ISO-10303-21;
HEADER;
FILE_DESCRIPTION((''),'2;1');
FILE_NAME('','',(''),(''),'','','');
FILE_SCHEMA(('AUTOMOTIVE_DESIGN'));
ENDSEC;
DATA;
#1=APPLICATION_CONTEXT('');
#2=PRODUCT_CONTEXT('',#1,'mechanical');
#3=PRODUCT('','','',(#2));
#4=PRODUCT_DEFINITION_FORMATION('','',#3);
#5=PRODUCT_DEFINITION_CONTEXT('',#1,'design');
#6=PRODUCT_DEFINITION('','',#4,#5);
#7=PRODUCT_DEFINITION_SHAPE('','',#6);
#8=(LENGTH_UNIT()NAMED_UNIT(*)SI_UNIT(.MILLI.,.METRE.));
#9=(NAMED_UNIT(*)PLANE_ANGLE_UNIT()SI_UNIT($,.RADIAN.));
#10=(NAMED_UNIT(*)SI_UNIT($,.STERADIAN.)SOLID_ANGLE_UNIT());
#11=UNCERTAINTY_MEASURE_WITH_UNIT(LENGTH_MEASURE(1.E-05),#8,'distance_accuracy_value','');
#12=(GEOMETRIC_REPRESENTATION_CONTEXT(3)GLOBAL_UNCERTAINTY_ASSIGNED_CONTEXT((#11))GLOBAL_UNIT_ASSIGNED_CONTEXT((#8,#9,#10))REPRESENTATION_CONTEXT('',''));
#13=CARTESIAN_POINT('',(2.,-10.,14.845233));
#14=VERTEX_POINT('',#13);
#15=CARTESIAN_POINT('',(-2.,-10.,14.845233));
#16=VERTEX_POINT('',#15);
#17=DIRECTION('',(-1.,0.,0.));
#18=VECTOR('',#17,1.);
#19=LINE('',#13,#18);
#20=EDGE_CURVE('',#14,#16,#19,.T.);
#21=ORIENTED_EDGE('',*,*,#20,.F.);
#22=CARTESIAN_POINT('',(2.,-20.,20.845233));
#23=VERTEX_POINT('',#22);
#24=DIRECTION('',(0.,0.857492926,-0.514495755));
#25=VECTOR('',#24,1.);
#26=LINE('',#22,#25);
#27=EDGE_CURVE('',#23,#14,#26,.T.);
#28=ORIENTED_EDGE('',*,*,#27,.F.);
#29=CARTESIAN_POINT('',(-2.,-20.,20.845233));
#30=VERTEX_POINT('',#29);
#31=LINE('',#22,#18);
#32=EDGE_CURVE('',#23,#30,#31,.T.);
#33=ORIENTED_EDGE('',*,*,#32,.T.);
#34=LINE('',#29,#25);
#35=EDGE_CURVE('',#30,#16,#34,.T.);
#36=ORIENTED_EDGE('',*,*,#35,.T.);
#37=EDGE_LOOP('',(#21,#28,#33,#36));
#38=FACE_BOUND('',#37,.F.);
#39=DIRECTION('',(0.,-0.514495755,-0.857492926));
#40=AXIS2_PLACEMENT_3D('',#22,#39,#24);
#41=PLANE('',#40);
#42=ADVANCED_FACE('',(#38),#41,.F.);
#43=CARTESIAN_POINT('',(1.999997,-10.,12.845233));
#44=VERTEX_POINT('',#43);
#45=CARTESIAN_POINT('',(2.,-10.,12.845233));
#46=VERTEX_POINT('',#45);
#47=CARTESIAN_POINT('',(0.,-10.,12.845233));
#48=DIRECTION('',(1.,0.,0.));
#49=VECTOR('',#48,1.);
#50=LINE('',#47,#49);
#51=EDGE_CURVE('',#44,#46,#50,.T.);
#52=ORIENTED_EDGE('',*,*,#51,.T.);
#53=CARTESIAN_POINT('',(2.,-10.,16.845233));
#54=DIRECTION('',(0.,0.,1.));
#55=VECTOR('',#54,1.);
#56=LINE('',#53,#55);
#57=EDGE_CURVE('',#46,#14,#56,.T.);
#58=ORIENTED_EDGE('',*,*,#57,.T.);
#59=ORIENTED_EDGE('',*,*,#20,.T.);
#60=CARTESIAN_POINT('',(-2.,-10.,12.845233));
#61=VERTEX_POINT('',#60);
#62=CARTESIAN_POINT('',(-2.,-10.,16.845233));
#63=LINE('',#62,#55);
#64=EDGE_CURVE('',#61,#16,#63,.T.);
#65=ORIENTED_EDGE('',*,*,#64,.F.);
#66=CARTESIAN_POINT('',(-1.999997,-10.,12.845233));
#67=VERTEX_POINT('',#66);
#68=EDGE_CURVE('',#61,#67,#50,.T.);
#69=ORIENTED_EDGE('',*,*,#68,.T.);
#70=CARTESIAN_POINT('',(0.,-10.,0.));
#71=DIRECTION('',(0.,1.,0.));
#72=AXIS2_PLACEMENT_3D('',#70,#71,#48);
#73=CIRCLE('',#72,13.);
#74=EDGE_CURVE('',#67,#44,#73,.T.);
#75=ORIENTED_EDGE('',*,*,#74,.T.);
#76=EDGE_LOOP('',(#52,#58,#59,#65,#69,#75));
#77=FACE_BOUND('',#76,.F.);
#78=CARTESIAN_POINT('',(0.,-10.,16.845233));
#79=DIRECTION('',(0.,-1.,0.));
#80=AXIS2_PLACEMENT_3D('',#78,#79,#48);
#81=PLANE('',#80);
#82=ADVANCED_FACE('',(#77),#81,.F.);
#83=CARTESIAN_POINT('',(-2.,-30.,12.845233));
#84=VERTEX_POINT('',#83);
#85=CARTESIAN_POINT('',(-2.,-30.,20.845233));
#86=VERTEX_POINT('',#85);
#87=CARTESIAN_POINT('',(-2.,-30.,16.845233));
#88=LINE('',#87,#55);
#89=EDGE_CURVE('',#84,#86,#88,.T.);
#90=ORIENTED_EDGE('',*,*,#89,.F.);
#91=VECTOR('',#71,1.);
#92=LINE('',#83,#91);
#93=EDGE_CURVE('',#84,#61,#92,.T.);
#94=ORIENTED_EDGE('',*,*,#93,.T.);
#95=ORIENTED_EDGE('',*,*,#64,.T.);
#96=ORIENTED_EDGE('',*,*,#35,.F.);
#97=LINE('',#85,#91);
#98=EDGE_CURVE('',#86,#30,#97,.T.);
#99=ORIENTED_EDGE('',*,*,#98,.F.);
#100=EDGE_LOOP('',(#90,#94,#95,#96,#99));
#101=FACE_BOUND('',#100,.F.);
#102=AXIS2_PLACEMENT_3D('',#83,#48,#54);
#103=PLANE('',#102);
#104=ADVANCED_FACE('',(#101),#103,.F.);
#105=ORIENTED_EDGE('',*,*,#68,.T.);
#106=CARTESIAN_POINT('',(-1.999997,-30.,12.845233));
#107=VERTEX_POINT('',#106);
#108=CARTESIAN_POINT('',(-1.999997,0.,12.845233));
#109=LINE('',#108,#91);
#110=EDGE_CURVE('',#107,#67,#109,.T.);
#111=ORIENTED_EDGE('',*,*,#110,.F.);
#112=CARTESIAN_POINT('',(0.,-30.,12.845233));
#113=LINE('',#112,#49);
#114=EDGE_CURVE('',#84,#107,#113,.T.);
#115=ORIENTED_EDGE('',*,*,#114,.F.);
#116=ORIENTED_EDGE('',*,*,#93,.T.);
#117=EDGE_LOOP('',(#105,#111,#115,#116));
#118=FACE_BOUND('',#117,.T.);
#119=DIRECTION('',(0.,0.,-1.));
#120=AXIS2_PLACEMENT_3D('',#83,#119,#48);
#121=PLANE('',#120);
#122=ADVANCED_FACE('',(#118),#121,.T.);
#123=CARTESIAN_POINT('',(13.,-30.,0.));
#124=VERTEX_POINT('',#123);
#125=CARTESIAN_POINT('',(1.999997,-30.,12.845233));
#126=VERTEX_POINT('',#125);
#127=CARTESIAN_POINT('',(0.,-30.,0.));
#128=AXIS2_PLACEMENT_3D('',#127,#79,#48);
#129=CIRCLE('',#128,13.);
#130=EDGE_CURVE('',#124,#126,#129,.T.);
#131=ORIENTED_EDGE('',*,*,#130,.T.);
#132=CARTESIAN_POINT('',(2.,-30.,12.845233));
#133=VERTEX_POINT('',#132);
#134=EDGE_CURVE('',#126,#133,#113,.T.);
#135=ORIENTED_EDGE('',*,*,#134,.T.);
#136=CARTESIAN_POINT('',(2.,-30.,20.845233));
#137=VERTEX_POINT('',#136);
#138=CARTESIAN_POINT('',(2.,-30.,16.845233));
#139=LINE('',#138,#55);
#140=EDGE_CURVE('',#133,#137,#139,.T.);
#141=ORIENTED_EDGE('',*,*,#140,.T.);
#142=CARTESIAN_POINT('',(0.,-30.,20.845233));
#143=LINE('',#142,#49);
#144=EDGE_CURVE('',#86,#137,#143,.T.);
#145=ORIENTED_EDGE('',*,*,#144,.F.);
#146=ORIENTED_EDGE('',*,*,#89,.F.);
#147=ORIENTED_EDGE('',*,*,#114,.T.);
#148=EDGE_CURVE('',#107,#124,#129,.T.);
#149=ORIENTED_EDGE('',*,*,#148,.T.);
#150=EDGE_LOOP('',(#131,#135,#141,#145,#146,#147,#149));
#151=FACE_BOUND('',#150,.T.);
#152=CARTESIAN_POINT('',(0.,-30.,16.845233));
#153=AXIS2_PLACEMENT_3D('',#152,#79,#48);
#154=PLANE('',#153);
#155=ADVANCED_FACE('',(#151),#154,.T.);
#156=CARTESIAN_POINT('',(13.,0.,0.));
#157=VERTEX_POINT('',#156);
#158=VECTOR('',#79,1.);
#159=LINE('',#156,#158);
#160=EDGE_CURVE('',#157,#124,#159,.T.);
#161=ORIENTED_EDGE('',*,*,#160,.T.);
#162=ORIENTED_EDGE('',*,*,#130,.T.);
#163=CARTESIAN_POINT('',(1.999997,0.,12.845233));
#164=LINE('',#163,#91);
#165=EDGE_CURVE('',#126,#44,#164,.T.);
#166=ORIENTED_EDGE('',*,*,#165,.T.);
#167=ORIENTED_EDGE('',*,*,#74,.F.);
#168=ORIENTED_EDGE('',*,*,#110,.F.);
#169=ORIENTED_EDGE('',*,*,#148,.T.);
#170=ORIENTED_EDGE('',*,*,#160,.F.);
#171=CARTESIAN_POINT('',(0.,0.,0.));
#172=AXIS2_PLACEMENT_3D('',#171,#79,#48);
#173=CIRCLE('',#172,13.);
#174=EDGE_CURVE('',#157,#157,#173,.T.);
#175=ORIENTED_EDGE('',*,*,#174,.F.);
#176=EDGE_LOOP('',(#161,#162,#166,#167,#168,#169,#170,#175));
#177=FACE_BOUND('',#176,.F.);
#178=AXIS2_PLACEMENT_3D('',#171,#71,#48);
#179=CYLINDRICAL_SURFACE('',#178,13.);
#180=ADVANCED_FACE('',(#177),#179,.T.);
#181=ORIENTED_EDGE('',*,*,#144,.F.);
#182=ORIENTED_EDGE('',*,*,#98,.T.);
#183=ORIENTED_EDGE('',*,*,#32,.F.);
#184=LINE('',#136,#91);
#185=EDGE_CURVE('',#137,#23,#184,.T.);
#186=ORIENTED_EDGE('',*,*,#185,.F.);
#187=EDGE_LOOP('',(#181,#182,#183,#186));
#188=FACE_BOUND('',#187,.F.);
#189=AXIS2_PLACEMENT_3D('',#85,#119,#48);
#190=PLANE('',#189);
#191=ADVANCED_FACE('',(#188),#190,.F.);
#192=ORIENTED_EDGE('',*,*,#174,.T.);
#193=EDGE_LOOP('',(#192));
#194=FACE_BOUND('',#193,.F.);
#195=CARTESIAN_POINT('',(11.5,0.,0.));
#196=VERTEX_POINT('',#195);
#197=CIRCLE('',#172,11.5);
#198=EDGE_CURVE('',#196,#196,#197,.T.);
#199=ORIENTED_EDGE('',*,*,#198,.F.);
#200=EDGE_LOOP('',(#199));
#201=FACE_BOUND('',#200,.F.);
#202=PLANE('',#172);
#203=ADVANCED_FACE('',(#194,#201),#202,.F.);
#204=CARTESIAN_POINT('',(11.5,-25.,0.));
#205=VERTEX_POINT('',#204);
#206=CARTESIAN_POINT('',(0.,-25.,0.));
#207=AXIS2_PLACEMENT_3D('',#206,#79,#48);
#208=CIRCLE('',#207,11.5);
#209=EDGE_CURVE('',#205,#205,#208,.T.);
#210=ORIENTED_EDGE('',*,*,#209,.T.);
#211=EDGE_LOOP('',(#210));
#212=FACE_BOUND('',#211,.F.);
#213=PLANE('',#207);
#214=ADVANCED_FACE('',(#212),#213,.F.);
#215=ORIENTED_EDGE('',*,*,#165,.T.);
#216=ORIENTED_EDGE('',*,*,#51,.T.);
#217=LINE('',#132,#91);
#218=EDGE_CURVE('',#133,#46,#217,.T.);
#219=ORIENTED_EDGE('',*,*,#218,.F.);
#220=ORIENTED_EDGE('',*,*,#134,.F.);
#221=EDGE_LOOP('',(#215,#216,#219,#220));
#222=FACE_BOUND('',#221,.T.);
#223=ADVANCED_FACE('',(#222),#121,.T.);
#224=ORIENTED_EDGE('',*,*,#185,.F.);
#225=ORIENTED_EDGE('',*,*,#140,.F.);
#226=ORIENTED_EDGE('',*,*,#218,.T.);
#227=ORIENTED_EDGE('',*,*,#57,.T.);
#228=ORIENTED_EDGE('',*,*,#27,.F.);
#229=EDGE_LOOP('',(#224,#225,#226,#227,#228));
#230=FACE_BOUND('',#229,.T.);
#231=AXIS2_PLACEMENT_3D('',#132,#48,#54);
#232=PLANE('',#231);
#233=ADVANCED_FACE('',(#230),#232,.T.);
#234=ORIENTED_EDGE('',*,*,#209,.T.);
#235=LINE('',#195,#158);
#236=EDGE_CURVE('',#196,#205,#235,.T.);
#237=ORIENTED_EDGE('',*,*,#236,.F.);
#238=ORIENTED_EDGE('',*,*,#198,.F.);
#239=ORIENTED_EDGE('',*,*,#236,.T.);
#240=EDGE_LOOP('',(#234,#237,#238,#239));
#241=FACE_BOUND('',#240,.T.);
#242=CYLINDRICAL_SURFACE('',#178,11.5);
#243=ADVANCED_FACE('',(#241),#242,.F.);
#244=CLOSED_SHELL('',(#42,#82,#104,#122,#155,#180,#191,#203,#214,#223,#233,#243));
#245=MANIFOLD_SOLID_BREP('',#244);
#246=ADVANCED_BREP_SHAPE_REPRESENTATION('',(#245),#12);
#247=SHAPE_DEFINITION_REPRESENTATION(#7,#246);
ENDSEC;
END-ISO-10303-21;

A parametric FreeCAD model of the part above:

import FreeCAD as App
import Part
import Sketcher
Q = App.Units.Quantity


def add_polygon(sketch, points):
    """Adds a closed chain of lines whose ends are joined by coincident constraints."""
    first, n = sketch.GeometryCount, len(points)
    for a, b in zip(points, points[1:] + points[:1]):
        sketch.addGeometry(Part.LineSegment(App.Vector(*a, 0), App.Vector(*b, 0)), False)
    for i in range(n):
        sketch.addConstraint(Sketcher.Constraint("Coincident", first + i, 2, first + (i + 1) % n, 1))

doc = App.newDocument("Part")
params = doc.addObject("Spreadsheet::Sheet", "Params")
for row, (alias, value) in enumerate([
    ("sketch1_diameter", "26 mm"),
    ("pad1_length", "30 mm"),
    ("sketch2_diameter", "23 mm"),
    ("pocket1_length", "25 mm"),
    ("sketch3_width", "4 mm"),
    ("sketch3_height", "8 mm"),
    ("pad2_length", "20 mm"),
    ("sketch4_width", "10 mm"),
    ("sketch4_height", "6 mm"),
    ("pocket2_length", "4 mm"),
], start=1):
    params.set(f"A{row}", alias)
    params.set(f"B{row}", "=" + value)
    params.setAlias(f"B{row}", alias)

body = doc.addObject("PartDesign::Body", "Body")

# Sketch on XZ plane
sketch1 = body.newObject("Sketcher::SketchObject", "Sketch")
sketch1.AttachmentSupport = (doc.getObject("XZ_Plane"), [""])
sketch1.MapMode = "FlatFace"
sketch1.addGeometry(Part.Circle(App.Vector(0, 0, 0), App.Vector(0, 0, 1), 13), False)
sketch1.addConstraint([
    Sketcher.Constraint("Coincident", 0, 3, -1, 1),
    Sketcher.Constraint("Diameter", 0, Q("26 mm")),
])
sketch1.setExpression("Constraints[1]", "Params.sketch1_diameter")
pad1 = body.newObject("PartDesign::Pad", "Pad")
pad1.Profile = sketch1
pad1.setExpression("Length", "Params.pad1_length")

# Sketch on XZ plane
sketch2 = body.newObject("Sketcher::SketchObject", "Sketch001")
sketch2.AttachmentSupport = (doc.getObject("XZ_Plane"), [""])
sketch2.MapMode = "FlatFace"
sketch2.addGeometry(Part.Circle(App.Vector(0, 0, 0), App.Vector(0, 0, 1), 12), False)
sketch2.addConstraint([
    Sketcher.Constraint("Coincident", 0, 3, -1, 1),
    Sketcher.Constraint("Diameter", 0, Q("23 mm")),
])
sketch2.setExpression("Constraints[1]", "Params.sketch2_diameter")
pocket1 = body.newObject("PartDesign::Pocket", "Pocket")
pocket1.Profile = sketch2
pocket1.setExpression("Length", "Params.pocket1_length")
pocket1.Reversed = True

# Sketch on XZ plane
sketch3 = body.newObject("Sketcher::SketchObject", "Sketch002")
sketch3.AttachmentSupport = (doc.getObject("XZ_Plane"), [""])
sketch3.MapMode = "FlatFace"
sketch3.AttachmentOffset = App.Placement(App.Vector(0, 0, 30), App.Rotation())
add_polygon(sketch3, [(-2, 20.8), (-2, 12.8), (2, 12.8), (2, 20.8)])  # lines 0-3
sketch3.addConstraint([
    Sketcher.Constraint("Vertical", 0),
    Sketcher.Constraint("Horizontal", 1),
    Sketcher.Constraint("Vertical", 2),
    Sketcher.Constraint("Horizontal", 3),
    Sketcher.Constraint("DistanceX", 1, 1, 1, 2, Q("4 mm")),
    Sketcher.Constraint("DistanceY", 0, 2, 0, 1, Q("8 mm")),
    Sketcher.Constraint("DistanceX", 0, 2, -1, 1, Q("2 mm")),
    Sketcher.Constraint("DistanceY", -1, 1, 0, 2, Q("12.845233 mm")),
])
sketch3.setExpression("Constraints[8]", "Params.sketch3_width")
sketch3.setExpression("Constraints[9]", "Params.sketch3_height")
pad2 = body.newObject("PartDesign::Pad", "Pad001")
pad2.Profile = sketch3
pad2.setExpression("Length", "Params.pad2_length")
pad2.Reversed = True

# Sketch on YZ plane
sketch4 = body.newObject("Sketcher::SketchObject", "Sketch003")
sketch4.AttachmentSupport = (doc.getObject("YZ_Plane"), [""])
sketch4.MapMode = "FlatFace"
sketch4.AttachmentOffset = App.Placement(App.Vector(0, 0, 2), App.Rotation())
add_polygon(sketch4, [(-10, 21), (-20, 21), (-10, 15)])  # lines 0-2
sketch4.addConstraint([
    Sketcher.Constraint("Horizontal", 0),
    Sketcher.Constraint("Vertical", 2),
    Sketcher.Constraint("DistanceX", 0, 2, 0, 1, Q("10 mm")),
    Sketcher.Constraint("DistanceY", 2, 1, 2, 2, Q("6 mm")),
    Sketcher.Constraint("DistanceX", 0, 2, -1, 1, Q("20 mm")),
    Sketcher.Constraint("DistanceY", -1, 1, 0, 2, Q("20.845233 mm")),
])
sketch4.setExpression("Constraints[5]", "Params.sketch4_width")
sketch4.setExpression("Constraints[6]", "Params.sketch4_height")
pocket2 = body.newObject("PartDesign::Pocket", "Pocket001")
pocket2.Profile = sketch4
pocket2.setExpression("Length", "Params.pocket2_length")

doc.recompute()
